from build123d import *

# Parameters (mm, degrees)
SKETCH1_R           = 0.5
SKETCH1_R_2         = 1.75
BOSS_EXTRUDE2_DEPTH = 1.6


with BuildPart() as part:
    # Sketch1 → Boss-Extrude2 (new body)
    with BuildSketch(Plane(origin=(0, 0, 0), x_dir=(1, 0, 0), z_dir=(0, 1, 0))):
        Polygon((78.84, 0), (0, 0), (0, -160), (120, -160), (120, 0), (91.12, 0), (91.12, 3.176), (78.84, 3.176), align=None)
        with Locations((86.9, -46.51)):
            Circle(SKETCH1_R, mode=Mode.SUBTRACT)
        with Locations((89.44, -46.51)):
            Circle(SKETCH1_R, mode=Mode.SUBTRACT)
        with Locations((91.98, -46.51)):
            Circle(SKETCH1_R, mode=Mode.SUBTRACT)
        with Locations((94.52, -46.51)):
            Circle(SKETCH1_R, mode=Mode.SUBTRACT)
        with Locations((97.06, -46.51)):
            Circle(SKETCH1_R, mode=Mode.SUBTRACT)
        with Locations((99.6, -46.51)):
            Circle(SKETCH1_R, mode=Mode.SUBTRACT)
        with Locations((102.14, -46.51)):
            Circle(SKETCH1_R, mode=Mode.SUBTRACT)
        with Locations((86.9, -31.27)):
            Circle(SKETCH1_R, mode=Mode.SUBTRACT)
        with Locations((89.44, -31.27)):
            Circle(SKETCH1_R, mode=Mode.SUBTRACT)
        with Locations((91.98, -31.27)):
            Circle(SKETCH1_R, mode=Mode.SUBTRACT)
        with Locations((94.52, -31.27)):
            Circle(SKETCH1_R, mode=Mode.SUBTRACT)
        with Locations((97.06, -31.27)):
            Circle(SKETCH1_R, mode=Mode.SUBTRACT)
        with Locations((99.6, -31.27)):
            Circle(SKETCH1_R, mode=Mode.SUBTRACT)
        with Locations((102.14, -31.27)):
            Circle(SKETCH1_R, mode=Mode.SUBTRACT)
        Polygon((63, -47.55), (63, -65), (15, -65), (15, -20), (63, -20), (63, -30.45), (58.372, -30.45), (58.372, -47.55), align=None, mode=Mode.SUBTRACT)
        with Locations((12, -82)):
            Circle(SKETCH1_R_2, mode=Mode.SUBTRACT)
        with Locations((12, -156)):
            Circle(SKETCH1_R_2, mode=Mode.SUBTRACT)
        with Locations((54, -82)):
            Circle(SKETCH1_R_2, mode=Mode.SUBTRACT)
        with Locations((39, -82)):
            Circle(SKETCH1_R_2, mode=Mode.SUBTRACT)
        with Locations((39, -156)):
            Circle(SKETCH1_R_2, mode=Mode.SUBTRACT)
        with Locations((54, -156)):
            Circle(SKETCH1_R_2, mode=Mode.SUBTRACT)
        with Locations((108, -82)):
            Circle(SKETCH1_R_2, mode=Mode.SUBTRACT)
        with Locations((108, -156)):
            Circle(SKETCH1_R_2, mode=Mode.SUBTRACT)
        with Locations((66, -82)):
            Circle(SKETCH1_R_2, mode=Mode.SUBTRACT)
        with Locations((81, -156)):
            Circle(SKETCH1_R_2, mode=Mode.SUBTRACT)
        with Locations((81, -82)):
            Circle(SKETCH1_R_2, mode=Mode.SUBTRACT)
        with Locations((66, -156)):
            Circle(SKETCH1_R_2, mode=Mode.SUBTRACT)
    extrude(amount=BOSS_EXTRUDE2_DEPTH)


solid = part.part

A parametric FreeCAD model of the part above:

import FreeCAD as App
import Part
import Sketcher

V = App.Vector

doc = App.newDocument("Part")
params = doc.addObject("Spreadsheet::Sheet", "Params")
for row, (alias, value) in enumerate([
    ("sketch1_diameter", "1 mm"),
    ("sketch1_diameter2", "3.5 mm"),
    ("sketch1_width", "120 mm"),
    ("sketch1_width2", "48 mm"),
    ("sketch1_height", "160 mm"),
    ("pad1_length", "1.6 mm"),
], start=1):
    params.set(f"A{row}", alias)
    params.set(f"B{row}", "=" + value)
    params.setAlias(f"B{row}", alias)

body = doc.addObject("PartDesign::Body", "Body")

sketch1 = doc.addObject("Sketcher::SketchObject", "Sketch")
body.addObject(sketch1)
sketch1.AttachmentSupport = (doc.XZ_Plane, [""])
sketch1.MapMode = "FlatFace"
sketch1.addGeometry([
    Part.LineSegment(V(78.8, 0, 0), V(0, 0, 0)),
    Part.LineSegment(V(0, 0, 0), V(0, 160, 0)),
    Part.LineSegment(V(0, 160, 0), V(120, 160, 0)),
    Part.LineSegment(V(120, 160, 0), V(120, 0, 0)),
    Part.LineSegment(V(120, 0, 0), V(91.1, 0, 0)),
    Part.LineSegment(V(91.1, 0, 0), V(91.1, -3.2, 0)),
    Part.LineSegment(V(91.1, -3.2, 0), V(78.8, -3.2, 0)),
    Part.LineSegment(V(78.8, -3.2, 0), V(78.8, 0, 0)),
    Part.Circle(V(12, 156, 0), V(0, 0, 1), 1.8),
    Part.Circle(V(39, 156, 0), V(0, 0, 1), 1.8),
    Part.Circle(V(54, 156, 0), V(0, 0, 1), 1.8),
    Part.Circle(V(66, 156, 0), V(0, 0, 1), 1.8),
    Part.Circle(V(81, 156, 0), V(0, 0, 1), 1.8),
    Part.Circle(V(108, 156, 0), V(0, 0, 1), 1.8),
    Part.Circle(V(12, 82, 0), V(0, 0, 1), 1.8),
    Part.Circle(V(39, 82, 0), V(0, 0, 1), 1.8),
    Part.Circle(V(54, 82, 0), V(0, 0, 1), 1.8),
    Part.LineSegment(V(58.4, 47.5, 0), V(63, 47.5, 0)),
    Part.LineSegment(V(63, 47.5, 0), V(63, 65, 0)),
    Part.LineSegment(V(63, 65, 0), V(15, 65, 0)),
    Part.LineSegment(V(15, 65, 0), V(15, 20, 0)),
    Part.LineSegment(V(15, 20, 0), V(63, 20, 0)),
    Part.LineSegment(V(63, 20, 0), V(63, 30.4, 0)),
    Part.LineSegment(V(63, 30.4, 0), V(58.4, 30.4, 0)),
    Part.LineSegment(V(58.4, 30.4, 0), V(58.4, 47.5, 0)),
    Part.Circle(V(66, 82, 0), V(0, 0, 1), 1.8),
    Part.Circle(V(81, 82, 0), V(0, 0, 1), 1.8),
    Part.Circle(V(108, 82, 0), V(0, 0, 1), 1.8),
    Part.Circle(V(86.9, 46.5, 0), V(0, 0, 1), 0.5),
    Part.Circle(V(89.4, 46.5, 0), V(0, 0, 1), 0.5),
    Part.Circle(V(92, 46.5, 0), V(0, 0, 1), 0.5),
    Part.Circle(V(94.5, 46.5, 0), V(0, 0, 1), 0.5),
    Part.Circle(V(97.1, 46.5, 0), V(0, 0, 1), 0.5),
    Part.Circle(V(99.6, 46.5, 0), V(0, 0, 1), 0.5),
    Part.Circle(V(102.1, 46.5, 0), V(0, 0, 1), 0.5),
    Part.Circle(V(86.9, 31.3, 0), V(0, 0, 1), 0.5),
    Part.Circle(V(89.4, 31.3, 0), V(0, 0, 1), 0.5),
    Part.Circle(V(92, 31.3, 0), V(0, 0, 1), 0.5),
    Part.Circle(V(94.5, 31.3, 0), V(0, 0, 1), 0.5),
    Part.Circle(V(97.1, 31.3, 0), V(0, 0, 1), 0.5),
    Part.Circle(V(99.6, 31.3, 0), V(0, 0, 1), 0.5),
    Part.Circle(V(102.1, 31.3, 0), V(0, 0, 1), 0.5),
], False)
sketch1.addConstraint([
    Sketcher.Constraint("Coincident", 0, 2, 1, 1),
    Sketcher.Constraint("Coincident", 1, 2, 2, 1),
    Sketcher.Constraint("Coincident", 2, 2, 3, 1),
    Sketcher.Constraint("Coincident", 3, 2, 4, 1),
    Sketcher.Constraint("Coincident", 4, 2, 5, 1),
    Sketcher.Constraint("Coincident", 5, 2, 6, 1),
    Sketcher.Constraint("Coincident", 6, 2, 7, 1),
    Sketcher.Constraint("Coincident", 7, 2, 0, 1),
    Sketcher.Constraint("Coincident", 17, 2, 18, 1),
    Sketcher.Constraint("Coincident", 18, 2, 19, 1),
    Sketcher.Constraint("Coincident", 19, 2, 20, 1),
    Sketcher.Constraint("Coincident", 20, 2, 21, 1),
    Sketcher.Constraint("Coincident", 21, 2, 22, 1),
    Sketcher.Constraint("Coincident", 22, 2, 23, 1),
    Sketcher.Constraint("Coincident", 23, 2, 24, 1),
    Sketcher.Constraint("Coincident", 24, 2, 17, 1),
    Sketcher.Constraint("Horizontal", 0),
    Sketcher.Constraint("Vertical", 1),
    Sketcher.Constraint("Horizontal", 2),
    Sketcher.Constraint("Vertical", 3),
    Sketcher.Constraint("Horizontal", 4),
    Sketcher.Constraint("Vertical", 5),
    Sketcher.Constraint("Horizontal", 6),
    Sketcher.Constraint("Vertical", 7),
    Sketcher.Constraint("Horizontal", 17),
    Sketcher.Constraint("Vertical", 18),
    Sketcher.Constraint("Horizontal", 19),
    Sketcher.Constraint("Vertical", 20),
    Sketcher.Constraint("Horizontal", 21),
    Sketcher.Constraint("Vertical", 22),
    Sketcher.Constraint("Horizontal", 23),
    Sketcher.Constraint("Vertical", 24),
    Sketcher.Constraint("Coincident", 0, 2, -1, 1),
    Sketcher.Constraint("Equal", 8, 9),
    Sketcher.Constraint("Equal", 9, 10),
    Sketcher.Constraint("Equal", 10, 11),
    Sketcher.Constraint("Equal", 11, 12),
    Sketcher.Constraint("Equal", 12, 13),
    Sketcher.Constraint("Equal", 13, 14),
    Sketcher.Constraint("Equal", 14, 15),
    Sketcher.Constraint("Equal", 15, 16),
    Sketcher.Constraint("Equal", 16, 25),
    Sketcher.Constraint("Equal", 25, 26),
    Sketcher.Constraint("Equal", 26, 27),
    Sketcher.Constraint("Equal", 28, 29),
    Sketcher.Constraint("Equal", 29, 30),
    Sketcher.Constraint("Equal", 30, 31),
    Sketcher.Constraint("Equal", 31, 32),
    Sketcher.Constraint("Equal", 32, 33),
    Sketcher.Constraint("Equal", 33, 34),
    Sketcher.Constraint("Equal", 34, 35),
    Sketcher.Constraint("Equal", 35, 36),
    Sketcher.Constraint("Equal", 36, 37),
    Sketcher.Constraint("Equal", 37, 38),
    Sketcher.Constraint("Equal", 38, 39),
    Sketcher.Constraint("Equal", 39, 40),
    Sketcher.Constraint("Equal", 40, 41),
    Sketcher.Constraint("PointOnObject", 3, 2, -1),
    Sketcher.Constraint("Horizontal", 8, 3, 9, 3),
    Sketcher.Constraint("Horizontal", 9, 3, 10, 3),
    Sketcher.Constraint("Horizontal", 10, 3, 11, 3),
    Sketcher.Constraint("Horizontal", 11, 3, 12, 3),
    Sketcher.Constraint("Horizontal", 12, 3, 13, 3),
    Sketcher.Constraint("Horizontal", 14, 3, 15, 3),
    Sketcher.Constraint("Horizontal", 15, 3, 16, 3),
    Sketcher.Constraint("Horizontal", 16, 3, 25, 3),
    Sketcher.Constraint("Horizontal", 25, 3, 26, 3),
    Sketcher.Constraint("Horizontal", 26, 3, 27, 3),
    Sketcher.Constraint("Horizontal", 28, 3, 29, 3),
    Sketcher.Constraint("Horizontal", 29, 3, 30, 3),
    Sketcher.Constraint("Horizontal", 30, 3, 31, 3),
    Sketcher.Constraint("Horizontal", 31, 3, 32, 3),
    Sketcher.Constraint("Horizontal", 32, 3, 33, 3),
    Sketcher.Constraint("Horizontal", 33, 3, 34, 3),
    Sketcher.Constraint("Horizontal", 35, 3, 36, 3),
    Sketcher.Constraint("Horizontal", 36, 3, 37, 3),
    Sketcher.Constraint("Horizontal", 37, 3, 38, 3),
    Sketcher.Constraint("Horizontal", 38, 3, 39, 3),
    Sketcher.Constraint("Horizontal", 39, 3, 40, 3),
    Sketcher.Constraint("Horizontal", 40, 3, 41, 3),
    Sketcher.Constraint("Vertical", 8, 3, 14, 3),
    Sketcher.Constraint("Vertical", 9, 3, 15, 3),
    Sketcher.Constraint("Vertical", 10, 3, 16, 3),
    Sketcher.Constraint("Vertical", 11, 3, 25, 3),
    Sketcher.Constraint("Vertical", 12, 3, 26, 3),
    Sketcher.Constraint("Vertical", 13, 3, 27, 3),
    Sketcher.Constraint("Vertical", 28, 3, 35, 3),
    Sketcher.Constraint("Vertical", 29, 3, 36, 3),
    Sketcher.Constraint("Vertical", 30, 3, 37, 3),
    Sketcher.Constraint("Vertical", 31, 3, 38, 3),
    Sketcher.Constraint("Vertical", 32, 3, 39, 3),
    Sketcher.Constraint("Vertical", 33, 3, 40, 3),
    Sketcher.Constraint("Vertical", 34, 3, 41, 3),
    Sketcher.Constraint("Vertical", 18, 2, 21, 2),
    Sketcher.Constraint("Diameter", 28, 1.0),
    Sketcher.Constraint("Diameter", 8, 3.5),
    Sketcher.Constraint("DistanceX", 2, 1, 2, 2, 120.0),
    Sketcher.Constraint("DistanceX", 19, 2, 19, 1, 48.0),
    Sketcher.Constraint("DistanceY", 1, 1, 1, 2, 160.0),
    Sketcher.Constraint("DistanceY", 20, 2, 20, 1, 45.0),
    Sketcher.Constraint("DistanceY", 24, 1, 24, 2, 17.1),
    Sketcher.Constraint("DistanceX", -1, 1, 8, 3, 12.0),
    Sketcher.Constraint("DistanceY", -1, 1, 8, 3, 156.0),
    Sketcher.Constraint("DistanceX", -1, 1, 9, 3, 39.0),
    Sketcher.Constraint("DistanceX", -1, 1, 10, 3, 54.0),
    Sketcher.Constraint("DistanceX", -1, 1, 11, 3, 66.0),
    Sketcher.Constraint("DistanceX", -1, 1, 12, 3, 81.0),
    Sketcher.Constraint("DistanceX", -1, 1, 13, 3, 108.0),
    Sketcher.Constraint("DistanceY", -1, 1, 14, 3, 82.0),
    Sketcher.Constraint("DistanceX", -1, 1, 17, 2, 63.0),
    Sketcher.Constraint("DistanceY", -1, 1, 18, 2, 65.0),
    Sketcher.Constraint("DistanceX", 0, 2, 0, 1, 78.84),
    Sketcher.Constraint("DistanceX", 4, 2, 4, 1, 28.88),
    Sketcher.Constraint("DistanceY", 18, 1, 18, 2, 17.45),
    Sketcher.Constraint("DistanceX", -1, 1, 28, 3, 86.9),
    Sketcher.Constraint("DistanceX", -1, 1, 33, 3, 99.6),
    Sketcher.Constraint("DistanceX", 29, 3, 34, 3, 12.7),
    Sketcher.Constraint("DistanceX", 4, 2, 38, 3, 3.4),
    Sketcher.Constraint("DistanceX", 6, 2, 36, 3, 10.6),
    Sketcher.Constraint("DistanceX", 17, 1, 17, 2, 4.628),
    Sketcher.Constraint("DistanceY", 5, 2, 5, 1, 3.176),
    Sketcher.Constraint("DistanceY", -1, 1, 28, 3, 46.51),
    Sketcher.Constraint("DistanceX", -1, 1, 30, 3, 91.98),
    Sketcher.Constraint("DistanceX", -1, 1, 32, 3, 97.06),
    Sketcher.Constraint("DistanceY", -1, 1, 35, 3, 31.27),
])
sketch1.setExpression("Constraints[94]", "Params.sketch1_diameter")
sketch1.setExpression("Constraints[95]", "Params.sketch1_diameter2")
sketch1.setExpression("Constraints[96]", "Params.sketch1_width")
sketch1.setExpression("Constraints[97]", "Params.sketch1_width2")
sketch1.setExpression("Constraints[98]", "Params.sketch1_height")
pad1 = doc.addObject("PartDesign::Pad", "Pad")
body.addObject(pad1)
pad1.Profile = sketch1
pad1.setExpression("Length", "Params.pad1_length")
pad1.Reversed = True

doc.recompute()
